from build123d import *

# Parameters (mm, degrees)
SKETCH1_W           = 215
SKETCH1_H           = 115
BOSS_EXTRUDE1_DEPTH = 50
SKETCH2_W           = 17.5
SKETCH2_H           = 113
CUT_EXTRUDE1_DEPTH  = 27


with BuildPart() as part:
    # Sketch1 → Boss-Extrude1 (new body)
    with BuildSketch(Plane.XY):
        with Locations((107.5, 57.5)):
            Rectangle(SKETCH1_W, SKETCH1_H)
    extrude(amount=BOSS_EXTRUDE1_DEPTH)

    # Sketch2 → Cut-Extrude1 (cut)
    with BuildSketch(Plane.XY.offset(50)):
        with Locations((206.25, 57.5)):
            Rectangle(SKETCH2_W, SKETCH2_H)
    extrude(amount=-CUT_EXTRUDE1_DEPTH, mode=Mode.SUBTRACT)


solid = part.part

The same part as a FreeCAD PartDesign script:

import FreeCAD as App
import Part
import Sketcher
from FreeCAD import Vector


def add_polygon(sketch, points):
    """Adds a closed chain of lines whose ends are joined by coincident constraints."""
    first, n = sketch.GeometryCount, len(points)
    for a, b in zip(points, points[1:] + points[:1]):
        sketch.addGeometry(Part.LineSegment(App.Vector(*a, 0), App.Vector(*b, 0)), False)
    for i in range(n):
        sketch.addConstraint(Sketcher.Constraint("Coincident", first + i, 2, first + (i + 1) % n, 1))

doc = App.newDocument("Part")
params = doc.addObject("Spreadsheet::Sheet", "Params")
for row, (alias, value) in enumerate([
    ("sketch1_width", "215 mm"),
    ("sketch1_height", "115 mm"),
    ("pad1_length", "50 mm"),
    ("sketch2_height", "113 mm"),
    ("sketch2_width", "17.5 mm"),
    ("pocket1_length", "27 mm"),
], start=1):
    params.set(f"A{row}", alias)
    params.set(f"B{row}", "=" + value)
    params.setAlias(f"B{row}", alias)

body = doc.addObject("PartDesign::Body", "Body")

# Sketch on XY plane
sketch1 = body.newObject("Sketcher::SketchObject", "Sketch")
sketch1.AttachmentSupport = (doc.getObject("XY_Plane"), [""])
sketch1.MapMode = "FlatFace"
add_polygon(sketch1, [(0, 115), (0, 0), (215, 0), (215, 115)])  # lines 0-3
sketch1.addConstraint([
    Sketcher.Constraint("Vertical", 0),
    Sketcher.Constraint("Horizontal", 1),
    Sketcher.Constraint("Vertical", 2),
    Sketcher.Constraint("Horizontal", 3),
    Sketcher.Constraint("Coincident", 0, 2, -1, 1),
    Sketcher.Constraint("DistanceX", 1, 1, 1, 2, 215.0),
    Sketcher.Constraint("DistanceY", 0, 2, 0, 1, 115.0),
])
sketch1.setExpression("Constraints[9]", "Params.sketch1_width")
sketch1.setExpression("Constraints[10]", "Params.sketch1_height")
pad1 = body.newObject("PartDesign::Pad", "Pad")
pad1.Profile = sketch1
pad1.setExpression("Length", "Params.pad1_length")

# Sketch on XY plane
sketch2 = body.newObject("Sketcher::SketchObject", "Sketch001")
sketch2.AttachmentSupport = (doc.getObject("XY_Plane"), [""])
sketch2.MapMode = "FlatFace"
sketch2.AttachmentOffset = App.Placement(Vector(0, 0, 50), App.Rotation())
add_polygon(sketch2, [(198, 114), (198, 1), (215, 1), (215, 114)])  # lines 0-3
sketch2.addConstraint([
    Sketcher.Constraint("Vertical", 0),
    Sketcher.Constraint("Horizontal", 1),
    Sketcher.Constraint("Vertical", 2),
    Sketcher.Constraint("Horizontal", 3),
    Sketcher.Constraint("DistanceY", 0, 2, 0, 1, 113.0),
    Sketcher.Constraint("DistanceX", 1, 1, 1, 2, 17.5),
    Sketcher.Constraint("DistanceY", -1, 1, 0, 2, 1.0),
    Sketcher.Constraint("DistanceX", -1, 1, 1, 2, 215.0),
])
sketch2.setExpression("Constraints[8]", "Params.sketch2_height")
sketch2.setExpression("Constraints[9]", "Params.sketch2_width")
pocket1 = body.newObject("PartDesign::Pocket", "Pocket")
pocket1.Profile = sketch2
pocket1.setExpression("Length", "Params.pocket1_length")

doc.recompute()
